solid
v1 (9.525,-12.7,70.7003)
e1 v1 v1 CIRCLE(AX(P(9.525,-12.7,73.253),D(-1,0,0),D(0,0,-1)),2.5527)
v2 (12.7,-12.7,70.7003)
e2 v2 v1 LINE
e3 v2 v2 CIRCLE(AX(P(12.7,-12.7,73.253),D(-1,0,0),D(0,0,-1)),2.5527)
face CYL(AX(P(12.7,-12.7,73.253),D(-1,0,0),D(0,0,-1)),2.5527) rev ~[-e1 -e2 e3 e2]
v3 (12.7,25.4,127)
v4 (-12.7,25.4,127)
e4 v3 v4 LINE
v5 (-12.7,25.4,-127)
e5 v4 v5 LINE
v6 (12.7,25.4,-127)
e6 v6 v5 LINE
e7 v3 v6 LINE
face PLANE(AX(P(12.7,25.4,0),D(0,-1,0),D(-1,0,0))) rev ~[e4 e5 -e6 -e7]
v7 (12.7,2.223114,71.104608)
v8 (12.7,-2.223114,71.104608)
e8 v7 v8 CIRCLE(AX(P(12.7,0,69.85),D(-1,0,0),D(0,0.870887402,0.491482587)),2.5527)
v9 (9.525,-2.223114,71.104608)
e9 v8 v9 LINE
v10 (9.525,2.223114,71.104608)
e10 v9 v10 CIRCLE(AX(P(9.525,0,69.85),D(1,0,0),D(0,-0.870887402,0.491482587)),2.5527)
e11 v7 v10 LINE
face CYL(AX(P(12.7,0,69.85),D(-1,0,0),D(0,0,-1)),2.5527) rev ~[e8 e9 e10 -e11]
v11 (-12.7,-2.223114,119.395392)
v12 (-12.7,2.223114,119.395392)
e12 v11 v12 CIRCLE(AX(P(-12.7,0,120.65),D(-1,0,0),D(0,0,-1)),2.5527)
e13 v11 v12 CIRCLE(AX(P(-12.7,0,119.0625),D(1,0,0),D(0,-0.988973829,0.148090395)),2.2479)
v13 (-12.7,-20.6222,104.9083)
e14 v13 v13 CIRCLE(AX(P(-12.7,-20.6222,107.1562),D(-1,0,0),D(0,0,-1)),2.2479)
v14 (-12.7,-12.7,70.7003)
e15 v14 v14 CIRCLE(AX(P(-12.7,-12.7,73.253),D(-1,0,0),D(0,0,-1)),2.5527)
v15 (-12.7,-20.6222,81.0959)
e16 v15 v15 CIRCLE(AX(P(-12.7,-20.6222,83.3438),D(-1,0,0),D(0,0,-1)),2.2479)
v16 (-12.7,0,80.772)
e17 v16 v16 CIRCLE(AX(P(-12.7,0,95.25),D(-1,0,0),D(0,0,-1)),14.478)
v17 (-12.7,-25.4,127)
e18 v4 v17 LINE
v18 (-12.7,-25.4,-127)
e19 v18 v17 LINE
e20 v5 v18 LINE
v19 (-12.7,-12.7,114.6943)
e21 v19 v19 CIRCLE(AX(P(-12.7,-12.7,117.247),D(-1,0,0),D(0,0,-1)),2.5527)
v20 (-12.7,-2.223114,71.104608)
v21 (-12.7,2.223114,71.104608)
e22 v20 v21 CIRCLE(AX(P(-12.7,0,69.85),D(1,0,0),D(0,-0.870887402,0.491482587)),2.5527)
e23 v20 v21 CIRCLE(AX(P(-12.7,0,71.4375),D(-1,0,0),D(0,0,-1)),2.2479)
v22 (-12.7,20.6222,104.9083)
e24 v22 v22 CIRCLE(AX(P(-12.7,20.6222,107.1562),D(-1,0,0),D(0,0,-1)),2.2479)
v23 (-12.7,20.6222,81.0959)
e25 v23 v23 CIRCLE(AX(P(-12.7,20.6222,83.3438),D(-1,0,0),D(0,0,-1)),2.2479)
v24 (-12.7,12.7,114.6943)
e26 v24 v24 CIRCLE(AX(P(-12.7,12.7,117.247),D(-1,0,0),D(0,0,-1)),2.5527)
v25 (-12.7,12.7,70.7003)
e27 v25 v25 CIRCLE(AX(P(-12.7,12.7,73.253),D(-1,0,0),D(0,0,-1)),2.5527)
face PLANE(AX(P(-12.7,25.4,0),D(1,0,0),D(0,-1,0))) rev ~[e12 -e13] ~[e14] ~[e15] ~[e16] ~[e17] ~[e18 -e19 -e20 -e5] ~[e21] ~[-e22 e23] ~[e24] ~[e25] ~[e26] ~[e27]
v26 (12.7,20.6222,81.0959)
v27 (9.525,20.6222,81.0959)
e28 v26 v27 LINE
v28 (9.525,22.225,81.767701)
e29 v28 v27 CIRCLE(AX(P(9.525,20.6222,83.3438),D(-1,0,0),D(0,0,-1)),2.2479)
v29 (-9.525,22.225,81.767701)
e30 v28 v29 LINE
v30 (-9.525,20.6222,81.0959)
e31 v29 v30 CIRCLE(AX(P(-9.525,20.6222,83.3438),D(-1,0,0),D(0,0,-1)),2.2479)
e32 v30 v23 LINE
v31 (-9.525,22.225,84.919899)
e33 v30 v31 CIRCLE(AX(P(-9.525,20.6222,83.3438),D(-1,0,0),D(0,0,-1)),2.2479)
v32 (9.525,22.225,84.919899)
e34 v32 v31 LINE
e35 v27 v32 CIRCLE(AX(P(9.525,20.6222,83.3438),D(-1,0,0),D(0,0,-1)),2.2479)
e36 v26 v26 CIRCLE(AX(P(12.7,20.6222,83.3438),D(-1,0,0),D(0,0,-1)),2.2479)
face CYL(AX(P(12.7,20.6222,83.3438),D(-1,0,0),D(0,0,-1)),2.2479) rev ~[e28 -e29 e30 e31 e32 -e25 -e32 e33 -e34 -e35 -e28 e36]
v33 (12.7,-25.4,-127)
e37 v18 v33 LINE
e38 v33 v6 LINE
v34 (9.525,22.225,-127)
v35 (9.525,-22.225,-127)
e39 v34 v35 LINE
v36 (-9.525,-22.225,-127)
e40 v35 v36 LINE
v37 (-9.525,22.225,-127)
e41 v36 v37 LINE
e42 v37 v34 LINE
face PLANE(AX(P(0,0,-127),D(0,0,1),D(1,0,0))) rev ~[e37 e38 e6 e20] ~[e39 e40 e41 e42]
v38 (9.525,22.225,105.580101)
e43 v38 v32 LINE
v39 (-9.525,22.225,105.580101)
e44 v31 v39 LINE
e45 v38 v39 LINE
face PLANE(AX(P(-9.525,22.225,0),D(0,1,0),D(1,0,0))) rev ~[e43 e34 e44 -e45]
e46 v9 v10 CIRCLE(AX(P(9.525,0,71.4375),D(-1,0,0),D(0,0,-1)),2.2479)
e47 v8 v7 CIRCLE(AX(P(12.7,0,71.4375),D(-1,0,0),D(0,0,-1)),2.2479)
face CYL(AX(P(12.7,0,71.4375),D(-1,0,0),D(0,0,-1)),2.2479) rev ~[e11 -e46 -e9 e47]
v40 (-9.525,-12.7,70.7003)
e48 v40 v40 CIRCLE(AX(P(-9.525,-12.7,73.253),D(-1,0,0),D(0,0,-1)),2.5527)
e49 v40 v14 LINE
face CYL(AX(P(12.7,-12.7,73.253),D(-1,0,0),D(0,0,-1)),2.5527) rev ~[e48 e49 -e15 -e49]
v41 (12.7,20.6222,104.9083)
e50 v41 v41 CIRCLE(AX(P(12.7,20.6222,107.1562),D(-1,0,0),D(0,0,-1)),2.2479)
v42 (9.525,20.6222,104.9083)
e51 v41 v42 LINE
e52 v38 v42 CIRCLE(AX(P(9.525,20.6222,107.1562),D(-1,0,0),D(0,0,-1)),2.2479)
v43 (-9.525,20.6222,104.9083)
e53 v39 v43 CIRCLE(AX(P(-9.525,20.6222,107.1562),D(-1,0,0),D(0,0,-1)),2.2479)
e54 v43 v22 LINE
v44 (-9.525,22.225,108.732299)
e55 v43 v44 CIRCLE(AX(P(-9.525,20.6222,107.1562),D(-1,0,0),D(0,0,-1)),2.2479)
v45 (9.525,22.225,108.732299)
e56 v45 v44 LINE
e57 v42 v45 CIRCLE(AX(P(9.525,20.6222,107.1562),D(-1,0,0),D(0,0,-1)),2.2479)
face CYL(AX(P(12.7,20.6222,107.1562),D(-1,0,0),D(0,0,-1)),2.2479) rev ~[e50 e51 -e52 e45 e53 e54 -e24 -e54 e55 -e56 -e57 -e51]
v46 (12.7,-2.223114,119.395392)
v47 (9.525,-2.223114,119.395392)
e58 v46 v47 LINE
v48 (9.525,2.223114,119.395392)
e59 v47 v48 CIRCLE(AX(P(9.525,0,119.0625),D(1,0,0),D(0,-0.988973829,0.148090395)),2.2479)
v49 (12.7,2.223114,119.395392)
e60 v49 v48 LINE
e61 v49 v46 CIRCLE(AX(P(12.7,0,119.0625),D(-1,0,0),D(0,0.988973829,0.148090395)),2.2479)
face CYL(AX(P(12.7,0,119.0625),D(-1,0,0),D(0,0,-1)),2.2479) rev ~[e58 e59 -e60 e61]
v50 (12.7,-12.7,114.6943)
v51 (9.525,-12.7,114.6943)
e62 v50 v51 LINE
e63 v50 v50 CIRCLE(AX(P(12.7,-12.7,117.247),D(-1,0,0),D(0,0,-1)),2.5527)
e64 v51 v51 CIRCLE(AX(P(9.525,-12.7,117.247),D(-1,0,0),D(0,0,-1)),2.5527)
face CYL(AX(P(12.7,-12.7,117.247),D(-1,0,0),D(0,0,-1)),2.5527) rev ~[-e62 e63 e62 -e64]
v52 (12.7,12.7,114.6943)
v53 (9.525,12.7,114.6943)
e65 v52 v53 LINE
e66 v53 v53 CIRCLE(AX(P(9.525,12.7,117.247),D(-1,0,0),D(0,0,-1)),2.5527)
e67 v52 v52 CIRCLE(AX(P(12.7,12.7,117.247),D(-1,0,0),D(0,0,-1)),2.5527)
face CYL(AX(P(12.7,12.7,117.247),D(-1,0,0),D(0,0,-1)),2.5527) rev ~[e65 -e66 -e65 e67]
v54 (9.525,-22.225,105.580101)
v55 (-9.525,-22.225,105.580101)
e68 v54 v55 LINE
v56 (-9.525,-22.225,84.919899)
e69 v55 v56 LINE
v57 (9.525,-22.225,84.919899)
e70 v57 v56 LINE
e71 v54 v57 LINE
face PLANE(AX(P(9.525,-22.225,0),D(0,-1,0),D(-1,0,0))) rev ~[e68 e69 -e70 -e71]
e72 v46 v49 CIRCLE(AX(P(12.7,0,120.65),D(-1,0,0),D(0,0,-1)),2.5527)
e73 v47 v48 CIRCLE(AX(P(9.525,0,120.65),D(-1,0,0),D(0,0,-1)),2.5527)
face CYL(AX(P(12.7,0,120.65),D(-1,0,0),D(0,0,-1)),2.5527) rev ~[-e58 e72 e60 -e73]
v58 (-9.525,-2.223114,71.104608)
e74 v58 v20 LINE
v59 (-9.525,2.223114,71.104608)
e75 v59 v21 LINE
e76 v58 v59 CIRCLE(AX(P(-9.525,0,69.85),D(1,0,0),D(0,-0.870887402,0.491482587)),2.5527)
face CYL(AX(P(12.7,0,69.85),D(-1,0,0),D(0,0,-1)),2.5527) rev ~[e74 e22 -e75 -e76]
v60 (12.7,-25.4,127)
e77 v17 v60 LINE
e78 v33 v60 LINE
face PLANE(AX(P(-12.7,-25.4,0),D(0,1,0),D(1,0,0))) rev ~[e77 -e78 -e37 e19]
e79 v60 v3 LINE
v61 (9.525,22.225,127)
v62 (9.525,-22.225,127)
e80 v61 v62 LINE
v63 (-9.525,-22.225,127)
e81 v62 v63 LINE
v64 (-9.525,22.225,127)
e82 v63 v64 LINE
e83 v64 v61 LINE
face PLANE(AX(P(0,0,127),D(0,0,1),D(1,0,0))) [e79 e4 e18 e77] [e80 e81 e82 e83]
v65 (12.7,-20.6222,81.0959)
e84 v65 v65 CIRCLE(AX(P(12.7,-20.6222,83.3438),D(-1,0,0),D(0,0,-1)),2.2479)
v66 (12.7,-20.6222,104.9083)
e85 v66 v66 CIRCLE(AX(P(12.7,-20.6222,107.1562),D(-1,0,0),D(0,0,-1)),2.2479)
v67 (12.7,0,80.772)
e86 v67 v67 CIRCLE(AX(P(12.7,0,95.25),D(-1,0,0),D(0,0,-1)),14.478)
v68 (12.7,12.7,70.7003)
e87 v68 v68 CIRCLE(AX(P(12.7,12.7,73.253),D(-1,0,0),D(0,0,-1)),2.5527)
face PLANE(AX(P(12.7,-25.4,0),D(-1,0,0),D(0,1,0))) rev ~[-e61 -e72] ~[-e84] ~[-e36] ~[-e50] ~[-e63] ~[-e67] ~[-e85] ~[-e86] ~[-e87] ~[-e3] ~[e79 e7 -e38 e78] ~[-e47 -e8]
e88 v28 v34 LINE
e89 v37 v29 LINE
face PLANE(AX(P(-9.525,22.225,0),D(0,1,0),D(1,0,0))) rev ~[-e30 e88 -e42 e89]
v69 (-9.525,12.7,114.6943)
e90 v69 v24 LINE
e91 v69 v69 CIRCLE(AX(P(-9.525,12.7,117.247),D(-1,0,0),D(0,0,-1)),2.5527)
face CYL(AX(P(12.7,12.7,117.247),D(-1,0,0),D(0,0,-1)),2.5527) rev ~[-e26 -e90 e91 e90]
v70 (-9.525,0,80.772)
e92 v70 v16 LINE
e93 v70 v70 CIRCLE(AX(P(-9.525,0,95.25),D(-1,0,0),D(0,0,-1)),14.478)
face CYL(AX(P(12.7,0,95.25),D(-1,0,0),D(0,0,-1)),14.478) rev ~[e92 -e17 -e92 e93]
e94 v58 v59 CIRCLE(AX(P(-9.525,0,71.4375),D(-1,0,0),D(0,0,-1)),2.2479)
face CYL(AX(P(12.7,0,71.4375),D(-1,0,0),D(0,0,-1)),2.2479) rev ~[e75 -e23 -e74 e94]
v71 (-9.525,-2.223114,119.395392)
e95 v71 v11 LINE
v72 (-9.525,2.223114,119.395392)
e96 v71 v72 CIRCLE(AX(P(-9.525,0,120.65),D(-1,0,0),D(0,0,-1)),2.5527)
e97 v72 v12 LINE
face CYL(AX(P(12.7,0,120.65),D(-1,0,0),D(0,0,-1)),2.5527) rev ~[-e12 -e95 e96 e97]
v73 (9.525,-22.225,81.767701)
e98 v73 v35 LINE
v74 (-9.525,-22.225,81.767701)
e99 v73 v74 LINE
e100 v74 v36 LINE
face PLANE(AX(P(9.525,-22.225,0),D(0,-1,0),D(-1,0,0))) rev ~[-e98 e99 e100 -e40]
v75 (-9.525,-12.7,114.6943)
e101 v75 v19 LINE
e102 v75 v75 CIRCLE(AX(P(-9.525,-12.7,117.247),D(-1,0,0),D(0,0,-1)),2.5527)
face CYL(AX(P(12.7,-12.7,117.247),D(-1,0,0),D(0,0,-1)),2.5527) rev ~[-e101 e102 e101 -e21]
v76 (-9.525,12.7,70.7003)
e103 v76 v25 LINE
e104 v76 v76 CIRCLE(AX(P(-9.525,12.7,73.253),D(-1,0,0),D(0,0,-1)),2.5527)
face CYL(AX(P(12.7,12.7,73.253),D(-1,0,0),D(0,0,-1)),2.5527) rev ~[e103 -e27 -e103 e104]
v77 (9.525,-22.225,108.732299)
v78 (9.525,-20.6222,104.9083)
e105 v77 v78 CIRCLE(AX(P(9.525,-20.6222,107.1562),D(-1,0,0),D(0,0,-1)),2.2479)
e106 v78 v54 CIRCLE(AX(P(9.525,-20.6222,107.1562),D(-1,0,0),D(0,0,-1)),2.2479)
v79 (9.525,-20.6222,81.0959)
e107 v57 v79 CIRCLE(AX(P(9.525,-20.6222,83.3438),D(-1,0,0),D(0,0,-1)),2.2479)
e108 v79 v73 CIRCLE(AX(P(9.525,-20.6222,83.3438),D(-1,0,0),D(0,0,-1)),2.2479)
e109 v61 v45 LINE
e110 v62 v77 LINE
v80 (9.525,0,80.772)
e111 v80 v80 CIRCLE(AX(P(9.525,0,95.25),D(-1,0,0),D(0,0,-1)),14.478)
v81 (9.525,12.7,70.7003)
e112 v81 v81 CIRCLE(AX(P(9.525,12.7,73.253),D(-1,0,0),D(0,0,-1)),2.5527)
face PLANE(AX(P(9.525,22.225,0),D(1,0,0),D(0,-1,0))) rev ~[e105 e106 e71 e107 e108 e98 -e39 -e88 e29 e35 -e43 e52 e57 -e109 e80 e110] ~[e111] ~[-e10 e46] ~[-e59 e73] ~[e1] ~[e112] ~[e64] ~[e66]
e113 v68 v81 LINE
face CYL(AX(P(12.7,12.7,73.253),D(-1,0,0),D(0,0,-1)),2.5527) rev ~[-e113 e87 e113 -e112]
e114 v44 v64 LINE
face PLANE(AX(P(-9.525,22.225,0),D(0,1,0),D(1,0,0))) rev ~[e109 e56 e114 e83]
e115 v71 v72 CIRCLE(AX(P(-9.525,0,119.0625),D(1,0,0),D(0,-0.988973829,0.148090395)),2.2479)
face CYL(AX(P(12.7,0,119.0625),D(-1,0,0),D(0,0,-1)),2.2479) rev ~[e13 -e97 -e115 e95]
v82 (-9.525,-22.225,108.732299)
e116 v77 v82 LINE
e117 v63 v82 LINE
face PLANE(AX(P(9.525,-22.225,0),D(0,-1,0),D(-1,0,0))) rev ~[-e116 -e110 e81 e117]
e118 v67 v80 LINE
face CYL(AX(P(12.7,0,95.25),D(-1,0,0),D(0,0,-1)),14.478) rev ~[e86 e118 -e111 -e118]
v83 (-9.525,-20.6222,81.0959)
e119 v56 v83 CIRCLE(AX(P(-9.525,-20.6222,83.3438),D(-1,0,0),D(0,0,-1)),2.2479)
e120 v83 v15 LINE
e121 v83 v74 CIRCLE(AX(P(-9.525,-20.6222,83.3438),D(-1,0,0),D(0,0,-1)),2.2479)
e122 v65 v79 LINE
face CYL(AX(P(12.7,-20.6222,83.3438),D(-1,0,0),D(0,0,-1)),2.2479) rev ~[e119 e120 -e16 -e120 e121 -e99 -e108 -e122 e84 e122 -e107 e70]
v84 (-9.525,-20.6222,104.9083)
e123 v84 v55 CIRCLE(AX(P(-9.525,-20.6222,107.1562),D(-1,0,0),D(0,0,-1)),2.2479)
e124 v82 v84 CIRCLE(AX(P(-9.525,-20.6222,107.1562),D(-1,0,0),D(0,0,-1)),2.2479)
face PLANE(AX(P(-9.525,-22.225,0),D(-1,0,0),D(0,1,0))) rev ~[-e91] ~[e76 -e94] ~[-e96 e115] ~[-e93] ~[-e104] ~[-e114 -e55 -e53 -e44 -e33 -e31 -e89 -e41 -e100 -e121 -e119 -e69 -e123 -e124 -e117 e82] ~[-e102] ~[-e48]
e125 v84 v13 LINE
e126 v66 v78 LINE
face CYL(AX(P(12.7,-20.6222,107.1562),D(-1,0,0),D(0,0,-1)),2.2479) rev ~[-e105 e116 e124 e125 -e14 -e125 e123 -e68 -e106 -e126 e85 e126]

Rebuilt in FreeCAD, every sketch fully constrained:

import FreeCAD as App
import Part
import Sketcher
from FreeCAD import Vector
Q = App.Units.Quantity


def add_polygon(sketch, points):
    """Adds a closed chain of lines whose ends are joined by coincident constraints."""
    first, n = sketch.GeometryCount, len(points)
    for a, b in zip(points, points[1:] + points[:1]):
        sketch.addGeometry(Part.LineSegment(App.Vector(*a, 0), App.Vector(*b, 0)), False)
    for i in range(n):
        sketch.addConstraint(Sketcher.Constraint("Coincident", first + i, 2, first + (i + 1) % n, 1))

doc = App.newDocument("Part")
body = doc.addObject("PartDesign::Body", "Body")

# Sketch on XY plane
sketch1 = body.newObject("Sketcher::SketchObject", "Sketch")
sketch1.AttachmentSupport = (doc.getObject("XY_Plane"), [""])
sketch1.MapMode = "FlatFace"
add_polygon(sketch1, [(-13, 25), (-13, -25), (13, -25), (13, 25)])  # lines 0-3
add_polygon(sketch1, [(-10, -22), (-10, 22), (10, 22), (10, -22)])  # lines 4-7
sketch1.addConstraint(Sketcher.Constraint("Vertical", 0))
sketch1.addConstraint(Sketcher.Constraint("Horizontal", 1))
sketch1.addConstraint(Sketcher.Constraint("Vertical", 2))
sketch1.addConstraint(Sketcher.Constraint("Horizontal", 3))
sketch1.addConstraint(Sketcher.Constraint("Vertical", 4))
sketch1.addConstraint(Sketcher.Constraint("Horizontal", 5))
sketch1.addConstraint(Sketcher.Constraint("Vertical", 6))
sketch1.addConstraint(Sketcher.Constraint("Horizontal", 7))
sketch1.addConstraint(Sketcher.Constraint("Symmetric", 0, 2, 2, 2, -1, 1))
sketch1.addConstraint(Sketcher.Constraint("Symmetric", 4, 2, 6, 2, -1, 1))
sketch1.addConstraint(Sketcher.Constraint("DistanceX", 1, 1, 1, 2, Q("1 in")))
sketch1.addConstraint(Sketcher.Constraint("DistanceY", 0, 2, 0, 1, Q("2 in")))
sketch1.addConstraint(Sketcher.Constraint("DistanceX", 3, 2, 4, 2, Q("0.125 in")))
sketch1.addConstraint(Sketcher.Constraint("DistanceY", 4, 2, 3, 2, Q("0.125 in")))
pad1 = body.newObject("PartDesign::Pad", "Pad")
pad1.Profile = sketch1
pad1.Length = Q("10 in")
pad1.Midplane = True

# Sketch on YZ plane
sketch2 = body.newObject("Sketcher::SketchObject", "Sketch001")
sketch2.AttachmentSupport = (doc.getObject("YZ_Plane"), [""])
sketch2.MapMode = "FlatFace"
sketch2.AttachmentOffset = App.Placement(Vector(0, 0, 0.5 * 25.4), App.Rotation())
sketch2.addGeometry(Part.Circle(Vector(0, 95, 0), Vector(0, 0, 1), 14), False)
sketch2.addConstraint(Sketcher.Constraint("PointOnObject", 0, 3, -2))
sketch2.addConstraint(Sketcher.Constraint("Diameter", 0, Q("1.14 in")))
sketch2.addConstraint(Sketcher.Constraint("DistanceY", -1, 1, 0, 3, Q("3.75 in")))
doc.recompute()
hole = body.newObject("PartDesign::Hole", "Hole")
hole.Profile = sketch2
hole.ThreadType = "None"
hole.Diameter = Q("1.14 in")
hole.DepthType = "ThroughAll"

# Sketch on YZ plane
sketch3 = body.newObject("Sketcher::SketchObject", "Sketch002")
sketch3.AttachmentSupport = (doc.getObject("YZ_Plane"), [""])
sketch3.MapMode = "FlatFace"
sketch3.AttachmentOffset = App.Placement(Vector(0, 0, 0.5 * 25.4), App.Rotation())
sketch3.addGeometry(Part.Circle(Vector(12.7, 73.3, 0), Vector(0, 0, 1), 2.6), False)
sketch3.addGeometry(Part.Circle(Vector(0, 69.8, 0), Vector(0, 0, 1), 2.6), False)
sketch3.addGeometry(Part.Circle(Vector(-12.7, 73.3, 0), Vector(0, 0, 1), 2.6), False)
sketch3.addGeometry(Part.Circle(Vector(-12.7, 117.2, 0), Vector(0, 0, 1), 2.6), False)
sketch3.addGeometry(Part.Circle(Vector(0, 120.7, 0), Vector(0, 0, 1), 2.6), False)
sketch3.addGeometry(Part.Circle(Vector(12.7, 117.2, 0), Vector(0, 0, 1), 2.6), False)
sketch3.addConstraint(Sketcher.Constraint("Equal", 0, 1))
sketch3.addConstraint(Sketcher.Constraint("Equal", 1, 2))
sketch3.addConstraint(Sketcher.Constraint("Equal", 2, 3))
sketch3.addConstraint(Sketcher.Constraint("Equal", 3, 4))
sketch3.addConstraint(Sketcher.Constraint("Equal", 4, 5))
sketch3.addConstraint(Sketcher.Constraint("Symmetric", 0, 3, 2, 3, -2))
sketch3.addConstraint(Sketcher.Constraint("Symmetric", 3, 3, 5, 3, -2))
sketch3.addConstraint(Sketcher.Constraint("PointOnObject", 1, 3, -2))
sketch3.addConstraint(Sketcher.Constraint("PointOnObject", 4, 3, -2))
sketch3.addConstraint(Sketcher.Constraint("Vertical", 2, 3, 3, 3))
sketch3.addConstraint(Sketcher.Constraint("Diameter", 0, Q("0.201 in")))
sketch3.addConstraint(Sketcher.Constraint("DistanceX", 2, 3, 0, 3, Q("1 in")))
sketch3.addConstraint(Sketcher.Constraint("DistanceY", 1, 3, 4, 3, Q("2 in")))
sketch3.addConstraint(Sketcher.Constraint("DistanceY", -1, 1, 1, 3, Q("2.75 in")))
sketch3.addConstraint(Sketcher.Constraint("DistanceY", -1, 1, 0, 3, Q("73.253 mm")))
sketch3.addConstraint(Sketcher.Constraint("DistanceY", -1, 1, 3, 3, Q("117.247 mm")))
doc.recompute()
hole2 = body.newObject("PartDesign::Hole", "Hole001")
hole2.Profile = sketch3
hole2.ThreadType = "None"
hole2.Diameter = Q("0.201 in")
hole2.DepthType = "ThroughAll"

# Sketch on YZ plane
sketch4 = body.newObject("Sketcher::SketchObject", "Sketch003")
sketch4.AttachmentSupport = (doc.getObject("YZ_Plane"), [""])
sketch4.MapMode = "FlatFace"
sketch4.AttachmentOffset = App.Placement(Vector(0, 0, 0.5 * 25.4), App.Rotation())
sketch4.addGeometry(Part.Circle(Vector(-20.6, 107.2, 0), Vector(0, 0, 1), 2.2), False)
sketch4.addGeometry(Part.Circle(Vector(-20.6, 83.3, 0), Vector(0, 0, 1), 2.2), False)
sketch4.addGeometry(Part.Circle(Vector(0, 119.1, 0), Vector(0, 0, 1), 2.2), False)
sketch4.addGeometry(Part.Circle(Vector(20.6, 107.2, 0), Vector(0, 0, 1), 2.2), False)
sketch4.addGeometry(Part.Circle(Vector(20.6, 83.3, 0), Vector(0, 0, 1), 2.2), False)
sketch4.addGeometry(Part.Circle(Vector(0, 71.4, 0), Vector(0, 0, 1), 2.2), False)
sketch4.addConstraint(Sketcher.Constraint("Equal", 0, 1))
sketch4.addConstraint(Sketcher.Constraint("Equal", 1, 2))
sketch4.addConstraint(Sketcher.Constraint("Equal", 2, 3))
sketch4.addConstraint(Sketcher.Constraint("Equal", 3, 4))
sketch4.addConstraint(Sketcher.Constraint("Equal", 4, 5))
sketch4.addConstraint(Sketcher.Constraint("Symmetric", 0, 3, 3, 3, -2))
sketch4.addConstraint(Sketcher.Constraint("Symmetric", 1, 3, 4, 3, -2))
sketch4.addConstraint(Sketcher.Constraint("PointOnObject", 2, 3, -2))
sketch4.addConstraint(Sketcher.Constraint("PointOnObject", 5, 3, -2))
sketch4.addConstraint(Sketcher.Constraint("Vertical", 0, 3, 1, 3))
sketch4.addConstraint(Sketcher.Constraint("Diameter", 0, Q("0.177 in")))
sketch4.addConstraint(Sketcher.Constraint("DistanceY", -1, 1, 0, 3, Q("4.218748 in")))
sketch4.addConstraint(Sketcher.Constraint("DistanceY", -1, 1, 1, 3, Q("3.281252 in")))
sketch4.addConstraint(Sketcher.Constraint("DistanceY", -1, 1, 2, 3, Q("4.6875 in")))
sketch4.addConstraint(Sketcher.Constraint("DistanceY", -1, 1, 5, 3, Q("2.8125 in")))
sketch4.addConstraint(Sketcher.Constraint("DistanceX", 0, 3, -1, 1, Q("0.8119 in")))
doc.recompute()
hole3 = body.newObject("PartDesign::Hole", "Hole002")
hole3.Profile = sketch4
hole3.ThreadType = "None"
hole3.Diameter = Q("0.177 in")
hole3.DepthType = "ThroughAll"

doc.recompute()
